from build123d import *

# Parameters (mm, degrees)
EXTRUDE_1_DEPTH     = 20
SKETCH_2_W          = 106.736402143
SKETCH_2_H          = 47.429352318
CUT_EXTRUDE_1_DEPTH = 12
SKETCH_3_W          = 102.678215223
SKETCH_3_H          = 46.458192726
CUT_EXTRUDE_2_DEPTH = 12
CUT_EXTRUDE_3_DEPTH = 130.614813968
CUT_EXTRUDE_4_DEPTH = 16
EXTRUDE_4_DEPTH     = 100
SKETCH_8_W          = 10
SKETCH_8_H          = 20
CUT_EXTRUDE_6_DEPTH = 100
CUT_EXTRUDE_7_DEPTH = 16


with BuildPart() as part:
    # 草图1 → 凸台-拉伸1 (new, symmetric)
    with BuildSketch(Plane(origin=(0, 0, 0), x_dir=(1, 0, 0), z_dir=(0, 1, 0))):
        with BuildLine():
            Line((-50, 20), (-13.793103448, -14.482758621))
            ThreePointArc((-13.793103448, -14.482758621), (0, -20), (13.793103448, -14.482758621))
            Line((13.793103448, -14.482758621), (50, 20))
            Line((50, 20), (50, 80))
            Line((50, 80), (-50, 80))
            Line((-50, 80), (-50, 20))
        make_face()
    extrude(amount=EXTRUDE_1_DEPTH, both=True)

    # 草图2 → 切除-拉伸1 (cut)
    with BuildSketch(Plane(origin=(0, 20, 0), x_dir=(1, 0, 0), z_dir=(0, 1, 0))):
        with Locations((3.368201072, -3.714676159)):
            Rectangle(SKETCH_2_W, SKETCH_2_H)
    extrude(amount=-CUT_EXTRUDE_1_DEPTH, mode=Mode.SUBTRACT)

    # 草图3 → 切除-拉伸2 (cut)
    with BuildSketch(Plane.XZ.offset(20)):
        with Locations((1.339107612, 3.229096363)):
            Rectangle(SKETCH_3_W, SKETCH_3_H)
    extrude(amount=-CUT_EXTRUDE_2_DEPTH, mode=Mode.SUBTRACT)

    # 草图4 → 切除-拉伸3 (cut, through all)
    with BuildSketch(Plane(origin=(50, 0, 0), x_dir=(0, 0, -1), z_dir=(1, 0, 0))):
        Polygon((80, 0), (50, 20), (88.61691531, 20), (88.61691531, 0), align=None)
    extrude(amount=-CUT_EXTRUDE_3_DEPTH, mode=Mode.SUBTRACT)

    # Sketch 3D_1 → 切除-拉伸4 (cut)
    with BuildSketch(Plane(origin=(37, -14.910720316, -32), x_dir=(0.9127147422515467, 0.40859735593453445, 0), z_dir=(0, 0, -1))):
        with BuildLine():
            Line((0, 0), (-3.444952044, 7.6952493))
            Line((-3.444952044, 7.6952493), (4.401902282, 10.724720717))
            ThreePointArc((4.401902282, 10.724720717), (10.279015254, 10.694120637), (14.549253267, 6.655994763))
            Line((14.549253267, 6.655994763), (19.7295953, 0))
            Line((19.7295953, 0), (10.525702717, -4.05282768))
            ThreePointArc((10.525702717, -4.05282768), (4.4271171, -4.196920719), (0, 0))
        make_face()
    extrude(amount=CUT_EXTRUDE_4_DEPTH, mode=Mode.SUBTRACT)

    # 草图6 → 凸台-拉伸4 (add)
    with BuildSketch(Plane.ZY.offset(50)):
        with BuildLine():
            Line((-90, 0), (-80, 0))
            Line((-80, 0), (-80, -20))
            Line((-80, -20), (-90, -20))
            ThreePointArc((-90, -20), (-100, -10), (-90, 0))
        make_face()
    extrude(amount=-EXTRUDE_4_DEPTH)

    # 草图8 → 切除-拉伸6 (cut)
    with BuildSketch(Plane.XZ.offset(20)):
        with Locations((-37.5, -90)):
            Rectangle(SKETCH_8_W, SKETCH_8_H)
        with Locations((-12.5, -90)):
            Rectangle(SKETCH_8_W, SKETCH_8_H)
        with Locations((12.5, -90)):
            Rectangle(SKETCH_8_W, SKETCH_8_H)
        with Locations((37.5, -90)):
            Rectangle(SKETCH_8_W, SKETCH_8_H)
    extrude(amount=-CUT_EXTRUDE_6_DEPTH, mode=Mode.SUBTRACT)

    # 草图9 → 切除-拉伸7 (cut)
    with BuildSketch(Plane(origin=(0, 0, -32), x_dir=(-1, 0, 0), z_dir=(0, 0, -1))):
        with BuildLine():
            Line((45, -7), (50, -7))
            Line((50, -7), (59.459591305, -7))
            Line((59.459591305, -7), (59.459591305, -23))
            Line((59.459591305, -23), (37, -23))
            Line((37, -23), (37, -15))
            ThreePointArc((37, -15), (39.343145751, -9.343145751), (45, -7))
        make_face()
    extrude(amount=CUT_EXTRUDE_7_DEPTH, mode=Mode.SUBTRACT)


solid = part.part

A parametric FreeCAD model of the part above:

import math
import FreeCAD as App
import Part
import Sketcher

V = App.Vector
Q = App.Units.Quantity


def add_polygon(sketch, points):
    """Adds a closed chain of lines whose ends are joined by coincident constraints."""
    first, n = sketch.GeometryCount, len(points)
    for a, b in zip(points, points[1:] + points[:1]):
        sketch.addGeometry(Part.LineSegment(App.Vector(*a, 0), App.Vector(*b, 0)), False)
    for i in range(n):
        sketch.addConstraint(Sketcher.Constraint("Coincident", first + i, 2, first + (i + 1) % n, 1))

doc = App.newDocument("Part")
params = doc.addObject("Spreadsheet::Sheet", "Params")
for row, (alias, value) in enumerate([
    ("sketch1_radius", "20 mm"),
    ("sketch1_width", "100 mm"),
    ("sketch1_height", "60 mm"),
    ("sketch1_length", "50 mm"),
    ("pad1_length", "40 mm"),
    ("pocket1_length", "12 mm"),
    ("pocket2_length", "12 mm"),
    ("sketch4_width", "20 mm"),
    ("sketch5_radius", "8 mm"),
    ("pocket4_length", "16 mm"),
    ("sketch6_radius", "10 mm"),
    ("sketch6_height", "10 mm"),
    ("pad2_length", "100 mm"),
    ("sketch7_width", "10 mm"),
    ("sketch7_height", "20 mm"),
    ("pocket5_length", "100 mm"),
    ("sketch8_radius", "8 mm"),
    ("sketch8_height", "8 mm"),
    ("pocket6_length", "16 mm"),
], start=1):
    params.set(f"A{row}", alias)
    params.set(f"B{row}", "=" + value)
    params.setAlias(f"B{row}", alias)

body = doc.addObject("PartDesign::Body", "Body")

sketch1 = body.newObject("Sketcher::SketchObject", "Sketch")
sketch1.AttachmentSupport = (doc.getObject("XZ_Plane"), [""])
sketch1.MapMode = "FlatFace"
sketch1.addGeometry(Part.LineSegment(V(-50, -20, 0), V(-13.793103, 14.482759, 0)), False)
sketch1.addGeometry(Part.ArcOfCircle(Part.Circle(V(0, 0, 0), V(0, 0, 1), 20), math.radians(46.397181), math.radians(133.602819)), False)
sketch1.addGeometry(Part.LineSegment(V(13.793103, 14.482759, 0), V(50, -20, 0)), False)
sketch1.addGeometry(Part.LineSegment(V(50, -20, 0), V(50, -80, 0)), False)
sketch1.addGeometry(Part.LineSegment(V(50, -80, 0), V(-50, -80, 0)), False)
sketch1.addGeometry(Part.LineSegment(V(-50, -80, 0), V(-50, -20, 0)), False)
sketch1.addConstraint(Sketcher.Constraint("Tangent", 0, 2, 1, 2))
sketch1.addConstraint(Sketcher.Constraint("Tangent", 1, 1, 2, 1))
sketch1.addConstraint(Sketcher.Constraint("Coincident", 2, 2, 3, 1))
sketch1.addConstraint(Sketcher.Constraint("Coincident", 3, 2, 4, 1))
sketch1.addConstraint(Sketcher.Constraint("Coincident", 4, 2, 5, 1))
sketch1.addConstraint(Sketcher.Constraint("Coincident", 5, 2, 0, 1))
sketch1.addConstraint(Sketcher.Constraint("Vertical", 3))
sketch1.addConstraint(Sketcher.Constraint("Horizontal", 4))
sketch1.addConstraint(Sketcher.Constraint("Vertical", 5))
sketch1.addConstraint(Sketcher.Constraint("Coincident", 1, 3, -1, 1))
sketch1.addConstraint(Sketcher.Constraint("Symmetric", 2, 2, 5, 2, -2))
sketch1.addConstraint(Sketcher.Constraint("Radius", 1, Q("20 mm")))
sketch1.addConstraint(Sketcher.Constraint("DistanceX", 4, 2, 4, 1, Q("100 mm")))
sketch1.addConstraint(Sketcher.Constraint("DistanceY", 3, 2, 3, 1, Q("60 mm")))
sketch1.addConstraint(Sketcher.Constraint("Distance", 0, Q("50 mm")))
sketch1.setExpression("Constraints[11]", "Params.sketch1_radius")
sketch1.setExpression("Constraints[12]", "Params.sketch1_width")
sketch1.setExpression("Constraints[13]", "Params.sketch1_height")
sketch1.setExpression("Constraints[14]", "Params.sketch1_length")
pad1 = body.newObject("PartDesign::Pad", "Pad")
pad1.Profile = sketch1
pad1.setExpression("Length", "Params.pad1_length")
pad1.Midplane = True

sketch2 = body.newObject("Sketcher::SketchObject", "Sketch001")
sketch2.AttachmentSupport = (doc.getObject("XZ_Plane"), [""])
sketch2.MapMode = "FlatFace"
sketch2.AttachmentOffset = App.Placement(V(0, 0, -20), App.Rotation())
add_polygon(sketch2, [(-50, -20), (-50, 27.429352), (56.736402, 27.429352), (56.736402, -20)])
sketch2.addConstraint(Sketcher.Constraint("Vertical", 0))
sketch2.addConstraint(Sketcher.Constraint("Horizontal", 1))
sketch2.addConstraint(Sketcher.Constraint("Vertical", 2))
sketch2.addConstraint(Sketcher.Constraint("Horizontal", 3))
sketch2.addConstraint(Sketcher.Constraint("DistanceX", 0, 2, -1, 1, Q("50 mm")))
sketch2.addConstraint(Sketcher.Constraint("DistanceY", 2, 2, -1, 1, Q("20 mm")))
sketch2.addConstraint(Sketcher.Constraint("DistanceX", 1, 1, 1, 2, Q("106.736402 mm")))
sketch2.addConstraint(Sketcher.Constraint("DistanceY", 0, 1, 0, 2, Q("47.429352 mm")))
pocket1 = body.newObject("PartDesign::Pocket", "Pocket")
pocket1.Profile = sketch2
pocket1.setExpression("Length", "Params.pocket1_length")
pocket1.Reversed = True

sketch3 = body.newObject("Sketcher::SketchObject", "Sketch002")
sketch3.AttachmentSupport = (doc.getObject("XZ_Plane"), [""])
sketch3.MapMode = "FlatFace"
sketch3.AttachmentOffset = App.Placement(V(0, 0, 20), App.Rotation())
add_polygon(sketch3, [(-50, 26.458193), (-50, -20), (52.678215, -20), (52.678215, 26.458193)])
sketch3.addConstraint(Sketcher.Constraint("Vertical", 0))
sketch3.addConstraint(Sketcher.Constraint("Horizontal", 1))
sketch3.addConstraint(Sketcher.Constraint("Vertical", 2))
sketch3.addConstraint(Sketcher.Constraint("Horizontal", 3))
sketch3.addConstraint(Sketcher.Constraint("DistanceX", 0, 2, -1, 1, Q("50 mm")))
sketch3.addConstraint(Sketcher.Constraint("DistanceY", 0, 2, -1, 1, Q("20 mm")))
sketch3.addConstraint(Sketcher.Constraint("DistanceX", 1, 1, 1, 2, Q("102.678215 mm")))
sketch3.addConstraint(Sketcher.Constraint("DistanceY", 0, 2, 0, 1, Q("46.458193 mm")))
pocket2 = body.newObject("PartDesign::Pocket", "Pocket001")
pocket2.Profile = sketch3
pocket2.setExpression("Length", "Params.pocket2_length")

sketch4 = body.newObject("Sketcher::SketchObject", "Sketch003")
sketch4.AttachmentSupport = (doc.getObject("YZ_Plane"), [""])
sketch4.MapMode = "FlatFace"
sketch4.AttachmentOffset = App.Placement(V(0, 0, 50), App.Rotation())
add_polygon(sketch4, [(20, -50), (0, -80), (0, -88.616915), (20, -88.616915)])
sketch4.addConstraint(Sketcher.Constraint("Vertical", 1))
sketch4.addConstraint(Sketcher.Constraint("Horizontal", 2))
sketch4.addConstraint(Sketcher.Constraint("Vertical", 3))
sketch4.addConstraint(Sketcher.Constraint("PointOnObject", 0, 2, -2))
sketch4.addConstraint(Sketcher.Constraint("DistanceX", 2, 1, 2, 2, Q("20 mm")))
sketch4.addConstraint(Sketcher.Constraint("DistanceY", 0, 2, -1, 1, Q("80 mm")))
sketch4.addConstraint(Sketcher.Constraint("DistanceY", 3, 2, -1, 1, Q("50 mm")))
sketch4.addConstraint(Sketcher.Constraint("DistanceY", 1, 2, 1, 1, Q("8.616915 mm")))
sketch4.setExpression("Constraints[8]", "Params.sketch4_width")
pocket3 = body.newObject("PartDesign::Pocket", "Pocket002")
pocket3.Profile = sketch4
pocket3.Type = "ThroughAll"

sketch5 = body.newObject("Sketcher::SketchObject", "Sketch004")
sketch5.AttachmentSupport = (doc.getObject("XY_Plane"), [""])
sketch5.MapMode = "FlatFace"
sketch5.AttachmentOffset = App.Placement(V(0, 0, -32), App.Rotation())
sketch5.addGeometry(Part.LineSegment(V(37, -23.341886, 0), V(37, -14.91072, 0)), False)
sketch5.addGeometry(Part.ArcOfCircle(Part.Circle(V(45, -14.91072, 0), V(0, 0, 1), 8), math.radians(90.351015), math.radians(180)), False)
sketch5.addGeometry(Part.LineSegment(V(44.950989, -6.91087, 0), V(55.007492, -6.84926, 0)), False)
sketch5.addGeometry(Part.LineSegment(V(55.007492, -6.84926, 0), V(52.99894, -15.040958, 0)), False)
sketch5.addGeometry(Part.ArcOfCircle(Part.Circle(V(45, -14.91072, 0), V(0, 0, 1), 8), math.radians(-87.135639), math.radians(-0.932803)), False)
sketch5.addGeometry(Part.LineSegment(V(45.399774, -22.900725, 0), V(37, -23.341886, 0)), False)
sketch5.addConstraint(Sketcher.Constraint("Tangent", 0, 2, 1, 2))
sketch5.addConstraint(Sketcher.Constraint("Tangent", 1, 1, 2, 1))
sketch5.addConstraint(Sketcher.Constraint("Coincident", 2, 2, 3, 1))
sketch5.addConstraint(Sketcher.Constraint("Coincident", 3, 2, 4, 2))
sketch5.addConstraint(Sketcher.Constraint("Coincident", 4, 1, 5, 1))
sketch5.addConstraint(Sketcher.Constraint("Coincident", 5, 2, 0, 1))
sketch5.addConstraint(Sketcher.Constraint("Vertical", 0))
sketch5.addConstraint(Sketcher.Constraint("Coincident", 4, 3, 1, 3))
sketch5.addConstraint(Sketcher.Constraint("Equal", 1, 4))
sketch5.addConstraint(Sketcher.Constraint("Radius", 1, Q("8 mm")))
sketch5.addConstraint(Sketcher.Constraint("DistanceX", -1, 1, 1, 3, Q("45 mm")))
sketch5.addConstraint(Sketcher.Constraint("DistanceY", 3, 2, 2, 2, Q("8.191699 mm")))
sketch5.addConstraint(Sketcher.Constraint("Distance", 2, Q("10.056692 mm")))
sketch5.addConstraint(Sketcher.Constraint("Distance", 5, Q("8.411351 mm")))
sketch5.addConstraint(Sketcher.Constraint("DistanceY", 0, 1, 0, 2, Q("8.431166 mm")))
sketch5.addConstraint(Sketcher.Constraint("DistanceY", 1, 3, -1, 1, Q("14.91072 mm")))
sketch5.addConstraint(Sketcher.Constraint("DistanceX", -1, 1, 1, 1, Q("44.950989 mm")))
sketch5.setExpression("Constraints[9]", "Params.sketch5_radius")
pocket4 = body.newObject("PartDesign::Pocket", "Pocket003")
pocket4.Profile = sketch5
pocket4.setExpression("Length", "Params.pocket4_length")

sketch6 = body.newObject("Sketcher::SketchObject", "Sketch005")
sketch6.AttachmentSupport = (doc.getObject("YZ_Plane"), [""])
sketch6.MapMode = "FlatFace"
sketch6.AttachmentOffset = App.Placement(V(0, 0, -50), App.Rotation())
sketch6.addGeometry(Part.LineSegment(V(0, -80, 0), V(0, -90, 0)), False)
sketch6.addGeometry(Part.ArcOfCircle(Part.Circle(V(-10, -90, 0), V(0, 0, 1), 10), math.radians(180), math.radians(360)), False)
sketch6.addGeometry(Part.LineSegment(V(-20, -90, 0), V(-20, -80, 0)), False)
sketch6.addGeometry(Part.LineSegment(V(-20, -80, 0), V(0, -80, 0)), False)
sketch6.addConstraint(Sketcher.Constraint("Tangent", 0, 2, 1, 2))
sketch6.addConstraint(Sketcher.Constraint("Tangent", 1, 1, 2, 1))
sketch6.addConstraint(Sketcher.Constraint("Coincident", 2, 2, 3, 1))
sketch6.addConstraint(Sketcher.Constraint("Coincident", 3, 2, 0, 1))
sketch6.addConstraint(Sketcher.Constraint("Vertical", 0))
sketch6.addConstraint(Sketcher.Constraint("Vertical", 2))
sketch6.addConstraint(Sketcher.Constraint("Horizontal", 3))
sketch6.addConstraint(Sketcher.Constraint("PointOnObject", 0, 2, -2))
sketch6.addConstraint(Sketcher.Constraint("Radius", 1, Q("10 mm")))
sketch6.addConstraint(Sketcher.Constraint("DistanceY", 0, 2, 0, 1, Q("10 mm")))
sketch6.addConstraint(Sketcher.Constraint("DistanceY", 1, 3, -1, 1, Q("90 mm")))
sketch6.setExpression("Constraints[8]", "Params.sketch6_radius")
sketch6.setExpression("Constraints[9]", "Params.sketch6_height")
pad2 = body.newObject("PartDesign::Pad", "Pad001")
pad2.Profile = sketch6
pad2.setExpression("Length", "Params.pad2_length")

sketch7 = body.newObject("Sketcher::SketchObject", "Sketch006")
sketch7.AttachmentSupport = (doc.getObject("XZ_Plane"), [""])
sketch7.MapMode = "FlatFace"
sketch7.AttachmentOffset = App.Placement(V(0, 0, 20), App.Rotation())
add_polygon(sketch7, [(-42.5, -80), (-42.5, -100), (-32.5, -100), (-32.5, -80)])
add_polygon(sketch7, [(-17.5, -80), (-17.5, -100), (-7.5, -100), (-7.5, -80)])
add_polygon(sketch7, [(7.5, -80), (7.5, -100), (17.5, -100), (17.5, -80)])
add_polygon(sketch7, [(32.5, -80), (32.5, -100), (42.5, -100), (42.5, -80)])
sketch7.addConstraint(Sketcher.Constraint("Vertical", 0))
sketch7.addConstraint(Sketcher.Constraint("Horizontal", 1))
sketch7.addConstraint(Sketcher.Constraint("Vertical", 2))
sketch7.addConstraint(Sketcher.Constraint("Horizontal", 3))
sketch7.addConstraint(Sketcher.Constraint("Vertical", 4))
sketch7.addConstraint(Sketcher.Constraint("Horizontal", 5))
sketch7.addConstraint(Sketcher.Constraint("Vertical", 6))
sketch7.addConstraint(Sketcher.Constraint("Horizontal", 7))
sketch7.addConstraint(Sketcher.Constraint("Vertical", 8))
sketch7.addConstraint(Sketcher.Constraint("Horizontal", 9))
sketch7.addConstraint(Sketcher.Constraint("Vertical", 10))
sketch7.addConstraint(Sketcher.Constraint("Horizontal", 11))
sketch7.addConstraint(Sketcher.Constraint("Vertical", 12))
sketch7.addConstraint(Sketcher.Constraint("Horizontal", 13))
sketch7.addConstraint(Sketcher.Constraint("Vertical", 14))
sketch7.addConstraint(Sketcher.Constraint("Horizontal", 15))
sketch7.addConstraint(Sketcher.Constraint("Symmetric", 5, 2, 8, 2, -2))
sketch7.addConstraint(Sketcher.Constraint("Symmetric", 7, 2, 10, 2, -2))
sketch7.addConstraint(Sketcher.Constraint("Symmetric", 1, 2, 12, 2, -2))
sketch7.addConstraint(Sketcher.Constraint("Symmetric", 3, 2, 14, 2, -2))
sketch7.addConstraint(Sketcher.Constraint("Horizontal", 1, 2, 4, 2))
sketch7.addConstraint(Sketcher.Constraint("Horizontal", 3, 2, 6, 2))
sketch7.addConstraint(Sketcher.Constraint("Equal", 3, 5))
sketch7.addConstraint(Sketcher.Constraint("DistanceX", 1, 1, 1, 2, Q("10 mm")))
sketch7.addConstraint(Sketcher.Constraint("DistanceY", 0, 2, 0, 1, Q("20 mm")))
sketch7.addConstraint(Sketcher.Constraint("DistanceY", 0, 2, -1, 1, Q("100 mm")))
sketch7.addConstraint(Sketcher.Constraint("DistanceX", 1, 2, 4, 2, Q("15 mm")))
sketch7.addConstraint(Sketcher.Constraint("DistanceX", 5, 2, 8, 2, Q("15 mm")))
sketch7.setExpression("Constraints[39]", "Params.sketch7_width")
sketch7.setExpression("Constraints[40]", "Params.sketch7_height")
pocket5 = body.newObject("PartDesign::Pocket", "Pocket004")
pocket5.Profile = sketch7
pocket5.setExpression("Length", "Params.pocket5_length")

sketch8 = body.newObject("Sketcher::SketchObject", "Sketch007")
sketch8.AttachmentSupport = (doc.getObject("XY_Plane"), [""])
sketch8.MapMode = "FlatFace"
sketch8.AttachmentOffset = App.Placement(V(0, 0, -32), App.Rotation())
sketch8.addGeometry(Part.LineSegment(V(-59.459591, -7, 0), V(-45, -7, 0)), False)
sketch8.addGeometry(Part.ArcOfCircle(Part.Circle(V(-45, -15, 0), V(0, 0, 1), 8), math.radians(0), math.radians(90)), False)
sketch8.addGeometry(Part.LineSegment(V(-37, -15, 0), V(-37, -23, 0)), False)
sketch8.addGeometry(Part.LineSegment(V(-37, -23, 0), V(-59.459591, -23, 0)), False)
sketch8.addGeometry(Part.LineSegment(V(-59.459591, -23, 0), V(-59.459591, -7, 0)), False)
sketch8.addConstraint(Sketcher.Constraint("Tangent", 0, 2, 1, 2))
sketch8.addConstraint(Sketcher.Constraint("Tangent", 1, 1, 2, 1))
sketch8.addConstraint(Sketcher.Constraint("Coincident", 2, 2, 3, 1))
sketch8.addConstraint(Sketcher.Constraint("Coincident", 3, 2, 4, 1))
sketch8.addConstraint(Sketcher.Constraint("Coincident", 4, 2, 0, 1))
sketch8.addConstraint(Sketcher.Constraint("Horizontal", 0))
sketch8.addConstraint(Sketcher.Constraint("Vertical", 2))
sketch8.addConstraint(Sketcher.Constraint("Horizontal", 3))
sketch8.addConstraint(Sketcher.Constraint("Vertical", 4))
sketch8.addConstraint(Sketcher.Constraint("Radius", 1, Q("8 mm")))
sketch8.addConstraint(Sketcher.Constraint("DistanceY", 2, 2, 2, 1, Q("8 mm")))
sketch8.addConstraint(Sketcher.Constraint("DistanceX", 1, 3, -1, 1, Q("45 mm")))
sketch8.addConstraint(Sketcher.Constraint("DistanceY", 1, 3, -1, 1, Q("15 mm")))
sketch8.addConstraint(Sketcher.Constraint("DistanceX", 0, 1, 0, 2, Q("14.459591 mm")))
sketch8.setExpression("Constraints[9]", "Params.sketch8_radius")
sketch8.setExpression("Constraints[10]", "Params.sketch8_height")
pocket6 = body.newObject("PartDesign::Pocket", "Pocket005")
pocket6.Profile = sketch8
pocket6.setExpression("Length", "Params.pocket6_length")

doc.recompute()
